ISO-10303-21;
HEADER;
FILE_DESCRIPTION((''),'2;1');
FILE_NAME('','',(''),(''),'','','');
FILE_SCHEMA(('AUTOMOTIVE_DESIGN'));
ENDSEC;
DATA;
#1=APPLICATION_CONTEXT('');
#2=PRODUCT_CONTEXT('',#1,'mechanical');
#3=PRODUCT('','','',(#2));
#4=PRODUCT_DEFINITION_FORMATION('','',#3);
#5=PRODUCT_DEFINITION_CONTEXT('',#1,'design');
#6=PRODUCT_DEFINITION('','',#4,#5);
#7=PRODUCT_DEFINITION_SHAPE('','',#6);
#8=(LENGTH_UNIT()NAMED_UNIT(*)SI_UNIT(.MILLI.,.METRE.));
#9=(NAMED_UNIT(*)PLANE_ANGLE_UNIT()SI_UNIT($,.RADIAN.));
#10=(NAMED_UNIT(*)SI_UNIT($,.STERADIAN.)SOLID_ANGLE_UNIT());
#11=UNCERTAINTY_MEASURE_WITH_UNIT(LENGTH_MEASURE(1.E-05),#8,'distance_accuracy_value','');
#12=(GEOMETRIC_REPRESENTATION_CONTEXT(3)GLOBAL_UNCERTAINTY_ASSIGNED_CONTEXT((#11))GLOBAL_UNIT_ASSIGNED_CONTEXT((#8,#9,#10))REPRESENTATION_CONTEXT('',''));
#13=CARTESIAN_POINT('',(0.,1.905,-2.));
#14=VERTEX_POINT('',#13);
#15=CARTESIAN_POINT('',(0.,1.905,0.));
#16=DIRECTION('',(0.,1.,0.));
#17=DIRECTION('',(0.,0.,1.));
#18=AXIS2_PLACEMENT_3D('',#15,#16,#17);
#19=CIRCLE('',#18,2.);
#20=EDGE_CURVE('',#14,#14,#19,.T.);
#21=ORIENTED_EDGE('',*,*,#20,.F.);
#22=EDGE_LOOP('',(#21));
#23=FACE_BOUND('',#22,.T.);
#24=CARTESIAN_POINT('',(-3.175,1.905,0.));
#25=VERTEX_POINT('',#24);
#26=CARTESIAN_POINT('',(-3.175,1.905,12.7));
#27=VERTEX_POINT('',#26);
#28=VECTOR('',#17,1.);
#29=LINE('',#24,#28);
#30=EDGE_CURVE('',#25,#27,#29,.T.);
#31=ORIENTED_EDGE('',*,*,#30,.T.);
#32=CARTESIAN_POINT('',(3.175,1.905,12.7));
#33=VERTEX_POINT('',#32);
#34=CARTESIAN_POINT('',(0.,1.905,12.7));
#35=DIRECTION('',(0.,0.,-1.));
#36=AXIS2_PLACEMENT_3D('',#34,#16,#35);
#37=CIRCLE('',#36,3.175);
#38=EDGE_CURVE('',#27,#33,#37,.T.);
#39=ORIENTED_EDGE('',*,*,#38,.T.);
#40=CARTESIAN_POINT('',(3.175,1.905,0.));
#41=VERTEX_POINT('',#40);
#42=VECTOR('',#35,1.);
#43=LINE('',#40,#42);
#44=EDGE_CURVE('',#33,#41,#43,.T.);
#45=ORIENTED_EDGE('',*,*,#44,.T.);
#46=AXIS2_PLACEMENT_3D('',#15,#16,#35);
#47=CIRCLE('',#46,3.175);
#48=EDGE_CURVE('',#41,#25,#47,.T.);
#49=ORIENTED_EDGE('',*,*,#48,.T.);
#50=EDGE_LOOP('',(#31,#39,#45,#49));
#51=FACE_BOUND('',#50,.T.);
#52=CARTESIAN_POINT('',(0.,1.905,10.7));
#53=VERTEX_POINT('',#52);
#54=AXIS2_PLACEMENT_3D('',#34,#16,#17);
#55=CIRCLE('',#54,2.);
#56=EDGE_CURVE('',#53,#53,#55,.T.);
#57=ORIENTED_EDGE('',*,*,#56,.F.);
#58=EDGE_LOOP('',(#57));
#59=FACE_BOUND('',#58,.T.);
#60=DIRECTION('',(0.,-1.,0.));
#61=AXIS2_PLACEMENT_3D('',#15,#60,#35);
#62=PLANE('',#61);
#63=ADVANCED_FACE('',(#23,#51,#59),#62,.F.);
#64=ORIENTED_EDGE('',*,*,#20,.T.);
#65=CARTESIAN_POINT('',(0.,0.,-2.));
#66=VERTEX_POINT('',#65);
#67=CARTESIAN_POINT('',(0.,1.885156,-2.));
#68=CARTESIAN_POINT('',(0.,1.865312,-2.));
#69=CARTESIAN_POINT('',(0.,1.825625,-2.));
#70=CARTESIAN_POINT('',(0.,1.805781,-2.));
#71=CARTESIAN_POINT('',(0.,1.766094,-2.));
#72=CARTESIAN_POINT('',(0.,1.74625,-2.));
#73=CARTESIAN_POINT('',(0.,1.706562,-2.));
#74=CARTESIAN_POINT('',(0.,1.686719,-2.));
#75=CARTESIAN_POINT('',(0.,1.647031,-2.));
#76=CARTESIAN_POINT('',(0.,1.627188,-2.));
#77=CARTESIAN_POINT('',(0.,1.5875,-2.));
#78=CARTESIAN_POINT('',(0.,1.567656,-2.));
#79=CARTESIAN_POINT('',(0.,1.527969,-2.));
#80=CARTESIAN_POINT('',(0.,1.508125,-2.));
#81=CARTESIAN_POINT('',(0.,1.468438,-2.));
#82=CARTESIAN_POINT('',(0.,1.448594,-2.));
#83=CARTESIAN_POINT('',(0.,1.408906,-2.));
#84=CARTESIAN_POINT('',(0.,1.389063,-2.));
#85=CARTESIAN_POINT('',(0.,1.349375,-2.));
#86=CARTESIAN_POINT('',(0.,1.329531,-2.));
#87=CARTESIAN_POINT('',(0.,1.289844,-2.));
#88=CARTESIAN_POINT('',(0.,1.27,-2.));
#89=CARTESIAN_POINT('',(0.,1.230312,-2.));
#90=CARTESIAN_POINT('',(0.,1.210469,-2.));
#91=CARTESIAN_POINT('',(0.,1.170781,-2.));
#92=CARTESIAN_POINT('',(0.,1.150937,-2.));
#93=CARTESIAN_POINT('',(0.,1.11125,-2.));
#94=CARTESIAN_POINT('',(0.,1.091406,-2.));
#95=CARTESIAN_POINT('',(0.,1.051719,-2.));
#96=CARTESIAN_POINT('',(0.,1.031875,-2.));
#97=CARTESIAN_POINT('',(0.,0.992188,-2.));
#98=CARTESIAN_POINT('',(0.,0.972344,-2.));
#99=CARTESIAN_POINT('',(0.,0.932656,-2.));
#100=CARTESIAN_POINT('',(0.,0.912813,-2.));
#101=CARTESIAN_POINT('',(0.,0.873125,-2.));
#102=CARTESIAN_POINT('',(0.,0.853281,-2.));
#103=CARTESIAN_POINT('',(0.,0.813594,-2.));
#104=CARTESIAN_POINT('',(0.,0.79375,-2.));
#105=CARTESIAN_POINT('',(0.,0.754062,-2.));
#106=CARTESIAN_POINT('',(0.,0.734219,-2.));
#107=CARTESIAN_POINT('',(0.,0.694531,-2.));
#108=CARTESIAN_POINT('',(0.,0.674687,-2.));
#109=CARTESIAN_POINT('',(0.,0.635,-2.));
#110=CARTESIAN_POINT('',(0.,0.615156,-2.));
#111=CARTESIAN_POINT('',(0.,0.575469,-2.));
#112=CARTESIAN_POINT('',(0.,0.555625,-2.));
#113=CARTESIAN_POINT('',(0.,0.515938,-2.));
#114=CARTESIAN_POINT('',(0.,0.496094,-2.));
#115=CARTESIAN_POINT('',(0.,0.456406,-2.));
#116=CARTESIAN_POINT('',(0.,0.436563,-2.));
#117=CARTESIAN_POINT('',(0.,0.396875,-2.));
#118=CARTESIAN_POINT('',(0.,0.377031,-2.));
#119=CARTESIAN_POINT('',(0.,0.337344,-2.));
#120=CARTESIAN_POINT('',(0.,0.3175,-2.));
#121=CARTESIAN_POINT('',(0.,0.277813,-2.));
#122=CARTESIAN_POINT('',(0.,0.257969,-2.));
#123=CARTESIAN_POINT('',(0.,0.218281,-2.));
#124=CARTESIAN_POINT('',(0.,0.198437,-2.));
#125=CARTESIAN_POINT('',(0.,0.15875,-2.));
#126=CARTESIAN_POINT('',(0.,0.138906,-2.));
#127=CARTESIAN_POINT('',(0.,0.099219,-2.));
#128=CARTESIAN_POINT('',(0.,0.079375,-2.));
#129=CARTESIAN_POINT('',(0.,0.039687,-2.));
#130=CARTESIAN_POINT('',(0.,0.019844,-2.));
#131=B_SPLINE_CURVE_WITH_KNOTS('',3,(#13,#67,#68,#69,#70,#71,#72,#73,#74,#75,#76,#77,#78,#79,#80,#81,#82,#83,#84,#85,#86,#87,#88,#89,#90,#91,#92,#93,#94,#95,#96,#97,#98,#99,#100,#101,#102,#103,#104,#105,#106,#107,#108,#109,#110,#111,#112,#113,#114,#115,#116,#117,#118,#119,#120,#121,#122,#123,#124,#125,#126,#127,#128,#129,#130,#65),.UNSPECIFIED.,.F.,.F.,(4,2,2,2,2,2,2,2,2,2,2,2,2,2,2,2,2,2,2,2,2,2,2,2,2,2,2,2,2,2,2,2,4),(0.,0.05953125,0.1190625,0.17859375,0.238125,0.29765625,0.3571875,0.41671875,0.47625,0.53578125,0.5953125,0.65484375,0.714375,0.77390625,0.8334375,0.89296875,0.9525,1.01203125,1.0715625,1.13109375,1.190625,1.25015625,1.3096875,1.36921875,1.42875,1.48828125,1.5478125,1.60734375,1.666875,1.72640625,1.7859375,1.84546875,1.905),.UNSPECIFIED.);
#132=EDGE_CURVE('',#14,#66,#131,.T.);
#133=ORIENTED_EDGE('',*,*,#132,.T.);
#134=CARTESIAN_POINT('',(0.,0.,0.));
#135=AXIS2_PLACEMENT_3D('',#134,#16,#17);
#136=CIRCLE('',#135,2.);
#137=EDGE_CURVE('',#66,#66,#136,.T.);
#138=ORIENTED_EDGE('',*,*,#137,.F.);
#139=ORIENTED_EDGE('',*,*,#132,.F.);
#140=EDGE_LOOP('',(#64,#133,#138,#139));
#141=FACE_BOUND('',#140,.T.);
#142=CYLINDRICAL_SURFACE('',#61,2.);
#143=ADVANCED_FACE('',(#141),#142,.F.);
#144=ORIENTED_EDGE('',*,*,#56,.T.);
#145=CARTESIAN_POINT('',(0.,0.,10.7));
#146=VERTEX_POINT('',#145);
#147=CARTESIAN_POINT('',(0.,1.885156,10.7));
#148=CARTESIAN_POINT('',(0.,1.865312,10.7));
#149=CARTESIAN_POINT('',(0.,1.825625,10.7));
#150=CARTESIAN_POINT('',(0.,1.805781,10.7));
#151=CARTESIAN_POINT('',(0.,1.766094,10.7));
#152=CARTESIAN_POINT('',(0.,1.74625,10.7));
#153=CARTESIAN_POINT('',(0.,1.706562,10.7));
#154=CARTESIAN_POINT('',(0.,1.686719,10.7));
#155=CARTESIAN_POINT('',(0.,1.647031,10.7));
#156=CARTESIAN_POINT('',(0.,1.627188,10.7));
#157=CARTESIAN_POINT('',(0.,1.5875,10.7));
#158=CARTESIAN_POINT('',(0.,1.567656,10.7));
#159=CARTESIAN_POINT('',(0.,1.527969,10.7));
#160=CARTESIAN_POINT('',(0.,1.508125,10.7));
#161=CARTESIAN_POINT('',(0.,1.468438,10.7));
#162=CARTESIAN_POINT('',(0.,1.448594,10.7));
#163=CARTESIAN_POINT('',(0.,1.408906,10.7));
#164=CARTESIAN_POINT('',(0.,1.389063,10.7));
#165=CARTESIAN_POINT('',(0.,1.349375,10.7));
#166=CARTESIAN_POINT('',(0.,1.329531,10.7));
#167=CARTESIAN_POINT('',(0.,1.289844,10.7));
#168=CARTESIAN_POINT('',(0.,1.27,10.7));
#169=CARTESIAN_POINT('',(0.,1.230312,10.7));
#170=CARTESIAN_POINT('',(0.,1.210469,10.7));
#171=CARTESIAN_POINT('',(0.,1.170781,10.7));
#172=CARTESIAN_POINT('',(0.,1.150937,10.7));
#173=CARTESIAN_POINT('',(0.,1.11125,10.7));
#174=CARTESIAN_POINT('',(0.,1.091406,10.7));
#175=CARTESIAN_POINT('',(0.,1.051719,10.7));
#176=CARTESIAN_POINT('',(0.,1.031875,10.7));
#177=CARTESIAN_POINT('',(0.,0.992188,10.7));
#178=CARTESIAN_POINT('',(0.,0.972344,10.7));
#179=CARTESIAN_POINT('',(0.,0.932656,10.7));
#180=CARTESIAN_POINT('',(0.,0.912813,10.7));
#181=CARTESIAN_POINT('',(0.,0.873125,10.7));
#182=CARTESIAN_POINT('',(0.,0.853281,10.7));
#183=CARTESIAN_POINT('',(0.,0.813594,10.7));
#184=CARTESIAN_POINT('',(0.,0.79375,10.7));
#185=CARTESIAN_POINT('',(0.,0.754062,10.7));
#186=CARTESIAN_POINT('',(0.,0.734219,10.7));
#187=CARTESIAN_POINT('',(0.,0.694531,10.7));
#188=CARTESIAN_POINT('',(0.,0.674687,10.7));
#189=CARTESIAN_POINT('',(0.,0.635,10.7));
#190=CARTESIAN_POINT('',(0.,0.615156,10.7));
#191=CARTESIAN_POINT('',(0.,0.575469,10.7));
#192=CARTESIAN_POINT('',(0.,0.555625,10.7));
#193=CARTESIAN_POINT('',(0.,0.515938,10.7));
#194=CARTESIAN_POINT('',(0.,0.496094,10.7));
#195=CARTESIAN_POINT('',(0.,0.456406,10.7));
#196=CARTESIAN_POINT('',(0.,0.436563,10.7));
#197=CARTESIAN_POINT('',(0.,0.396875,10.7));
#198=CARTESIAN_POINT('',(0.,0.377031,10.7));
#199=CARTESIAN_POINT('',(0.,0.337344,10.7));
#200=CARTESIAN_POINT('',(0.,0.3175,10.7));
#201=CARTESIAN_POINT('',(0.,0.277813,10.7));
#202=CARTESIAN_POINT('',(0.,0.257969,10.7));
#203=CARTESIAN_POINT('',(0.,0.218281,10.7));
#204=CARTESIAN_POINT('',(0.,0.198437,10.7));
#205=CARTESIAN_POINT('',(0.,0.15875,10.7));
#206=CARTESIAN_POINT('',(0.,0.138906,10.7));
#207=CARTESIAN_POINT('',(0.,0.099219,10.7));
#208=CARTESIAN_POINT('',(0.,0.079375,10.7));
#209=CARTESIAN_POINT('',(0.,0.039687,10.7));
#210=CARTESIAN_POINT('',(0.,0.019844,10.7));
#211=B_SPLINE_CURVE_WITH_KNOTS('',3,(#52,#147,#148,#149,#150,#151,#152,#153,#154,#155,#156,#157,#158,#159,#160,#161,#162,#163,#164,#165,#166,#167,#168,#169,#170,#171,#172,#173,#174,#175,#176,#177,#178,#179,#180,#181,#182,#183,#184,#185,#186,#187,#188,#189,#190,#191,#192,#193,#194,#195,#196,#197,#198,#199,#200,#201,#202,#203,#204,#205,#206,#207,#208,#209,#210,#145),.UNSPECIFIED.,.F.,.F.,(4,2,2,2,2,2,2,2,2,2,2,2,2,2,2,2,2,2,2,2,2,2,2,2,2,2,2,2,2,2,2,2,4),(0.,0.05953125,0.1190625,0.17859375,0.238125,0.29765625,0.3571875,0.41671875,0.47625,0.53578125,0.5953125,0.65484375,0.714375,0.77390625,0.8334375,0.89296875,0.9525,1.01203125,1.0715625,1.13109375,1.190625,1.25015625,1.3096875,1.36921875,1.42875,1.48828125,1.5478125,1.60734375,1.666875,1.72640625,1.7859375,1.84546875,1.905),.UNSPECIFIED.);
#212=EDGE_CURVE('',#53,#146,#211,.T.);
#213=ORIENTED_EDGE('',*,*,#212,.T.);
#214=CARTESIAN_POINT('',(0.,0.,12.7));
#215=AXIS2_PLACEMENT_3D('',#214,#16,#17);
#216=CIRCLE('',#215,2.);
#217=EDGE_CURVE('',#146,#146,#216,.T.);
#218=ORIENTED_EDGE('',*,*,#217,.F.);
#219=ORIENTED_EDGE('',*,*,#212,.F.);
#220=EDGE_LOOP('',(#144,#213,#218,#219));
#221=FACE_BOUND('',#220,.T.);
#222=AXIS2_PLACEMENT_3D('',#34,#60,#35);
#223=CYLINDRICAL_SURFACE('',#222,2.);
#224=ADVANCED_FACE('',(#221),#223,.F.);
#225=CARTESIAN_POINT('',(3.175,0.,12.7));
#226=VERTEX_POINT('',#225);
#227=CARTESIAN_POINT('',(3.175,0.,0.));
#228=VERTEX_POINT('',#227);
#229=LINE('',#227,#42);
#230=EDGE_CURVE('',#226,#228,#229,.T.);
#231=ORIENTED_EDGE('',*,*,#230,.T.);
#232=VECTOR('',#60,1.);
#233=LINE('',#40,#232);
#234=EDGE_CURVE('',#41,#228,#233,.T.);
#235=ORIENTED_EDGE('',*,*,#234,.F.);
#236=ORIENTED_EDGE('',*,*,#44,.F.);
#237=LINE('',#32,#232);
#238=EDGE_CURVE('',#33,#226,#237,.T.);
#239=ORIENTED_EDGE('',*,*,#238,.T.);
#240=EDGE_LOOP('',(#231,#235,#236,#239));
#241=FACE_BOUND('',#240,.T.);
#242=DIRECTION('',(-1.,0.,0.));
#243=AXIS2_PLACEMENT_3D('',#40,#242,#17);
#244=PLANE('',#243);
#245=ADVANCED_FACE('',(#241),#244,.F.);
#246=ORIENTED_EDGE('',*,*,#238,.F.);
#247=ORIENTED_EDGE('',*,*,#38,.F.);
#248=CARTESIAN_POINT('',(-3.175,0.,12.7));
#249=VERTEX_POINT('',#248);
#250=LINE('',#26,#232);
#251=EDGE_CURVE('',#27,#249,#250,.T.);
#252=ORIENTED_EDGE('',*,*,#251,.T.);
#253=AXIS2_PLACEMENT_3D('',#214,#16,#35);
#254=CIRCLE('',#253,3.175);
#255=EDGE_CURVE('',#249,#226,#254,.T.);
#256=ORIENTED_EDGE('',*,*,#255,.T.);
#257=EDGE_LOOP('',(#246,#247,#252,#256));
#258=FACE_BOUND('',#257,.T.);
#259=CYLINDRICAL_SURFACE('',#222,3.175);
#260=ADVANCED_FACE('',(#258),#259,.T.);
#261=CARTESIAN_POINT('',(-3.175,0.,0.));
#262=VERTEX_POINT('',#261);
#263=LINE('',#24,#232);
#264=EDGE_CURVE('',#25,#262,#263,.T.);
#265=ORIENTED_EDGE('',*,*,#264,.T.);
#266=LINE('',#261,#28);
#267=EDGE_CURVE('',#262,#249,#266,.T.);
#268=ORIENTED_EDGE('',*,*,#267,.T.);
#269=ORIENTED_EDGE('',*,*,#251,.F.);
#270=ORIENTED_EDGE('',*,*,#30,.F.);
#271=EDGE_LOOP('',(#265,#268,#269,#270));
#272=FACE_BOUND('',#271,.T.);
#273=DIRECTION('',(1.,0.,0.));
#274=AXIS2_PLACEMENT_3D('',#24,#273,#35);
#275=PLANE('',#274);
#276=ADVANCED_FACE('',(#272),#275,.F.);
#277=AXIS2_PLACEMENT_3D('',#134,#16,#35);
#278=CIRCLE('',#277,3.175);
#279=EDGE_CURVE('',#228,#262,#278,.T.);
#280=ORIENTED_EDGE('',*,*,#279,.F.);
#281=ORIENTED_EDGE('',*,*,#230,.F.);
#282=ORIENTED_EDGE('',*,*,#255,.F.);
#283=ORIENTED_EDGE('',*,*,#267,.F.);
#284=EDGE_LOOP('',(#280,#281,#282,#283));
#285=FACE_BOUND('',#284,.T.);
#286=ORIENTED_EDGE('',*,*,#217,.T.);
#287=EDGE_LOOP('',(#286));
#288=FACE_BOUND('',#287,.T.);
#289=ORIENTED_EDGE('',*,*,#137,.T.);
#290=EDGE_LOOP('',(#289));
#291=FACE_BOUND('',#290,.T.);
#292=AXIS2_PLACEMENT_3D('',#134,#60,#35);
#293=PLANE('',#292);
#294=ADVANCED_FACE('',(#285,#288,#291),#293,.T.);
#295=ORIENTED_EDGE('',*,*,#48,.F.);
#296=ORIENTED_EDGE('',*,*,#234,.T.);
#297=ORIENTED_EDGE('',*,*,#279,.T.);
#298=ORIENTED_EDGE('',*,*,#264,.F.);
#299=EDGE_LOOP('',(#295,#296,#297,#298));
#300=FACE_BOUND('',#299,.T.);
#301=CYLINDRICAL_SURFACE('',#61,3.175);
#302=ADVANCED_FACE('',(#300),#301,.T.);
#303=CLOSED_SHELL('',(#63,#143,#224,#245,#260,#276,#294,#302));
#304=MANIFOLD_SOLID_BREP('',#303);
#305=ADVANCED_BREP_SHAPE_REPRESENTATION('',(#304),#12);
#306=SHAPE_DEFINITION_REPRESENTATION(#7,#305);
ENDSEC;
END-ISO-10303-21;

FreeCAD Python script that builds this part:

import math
import FreeCAD as App
import Part
import Sketcher
from FreeCAD import Vector
Q = App.Units.Quantity

doc = App.newDocument("Part")
body = doc.addObject("PartDesign::Body", "Body")

# Sketch on XZ plane
sketch1 = doc.addObject("Sketcher::SketchObject", "Sketch")
body.addObject(sketch1)
sketch1.AttachmentSupport = (doc.XZ_Plane, [""])
sketch1.MapMode = "FlatFace"
sketch1.addGeometry(Part.LineSegment(Vector(3.2, 12.7, 0), Vector(3.2, 0, 0)), False)
sketch1.addGeometry(Part.ArcOfCircle(Part.Circle(Vector(0, 0, 0), Vector(0, 0, 1), 3.2), math.radians(180), math.radians(360)), False)
sketch1.addGeometry(Part.LineSegment(Vector(-3.2, 0, 0), Vector(-3.2, 12.7, 0)), False)
sketch1.addGeometry(Part.ArcOfCircle(Part.Circle(Vector(0, 12.7, 0), Vector(0, 0, 1), 3.2), math.radians(0), math.radians(180)), False)
sketch1.addGeometry(Part.Circle(Vector(0, 12.7, 0), Vector(0, 0, 1), 2), False)
sketch1.addGeometry(Part.Circle(Vector(0, 0, 0), Vector(0, 0, 1), 2), False)
sketch1.addConstraint(Sketcher.Constraint("Tangent", 0, 2, 1, 2))
sketch1.addConstraint(Sketcher.Constraint("Tangent", 1, 1, 2, 1))
sketch1.addConstraint(Sketcher.Constraint("Tangent", 2, 2, 3, 2))
sketch1.addConstraint(Sketcher.Constraint("Tangent", 3, 1, 0, 1))
sketch1.addConstraint(Sketcher.Constraint("Vertical", 0))
sketch1.addConstraint(Sketcher.Constraint("Vertical", 2))
sketch1.addConstraint(Sketcher.Constraint("Coincident", 1, 3, -1, 1))
sketch1.addConstraint(Sketcher.Constraint("Coincident", 5, 3, -1, 1))
sketch1.addConstraint(Sketcher.Constraint("Coincident", 4, 3, 3, 3))
sketch1.addConstraint(Sketcher.Constraint("Equal", 4, 5))
sketch1.addConstraint(Sketcher.Constraint("DistanceY", 0, 2, 0, 1, Q("0.5 in")))
sketch1.addConstraint(Sketcher.Constraint("Radius", 1, Q("0.125 in")))
sketch1.addConstraint(Sketcher.Constraint("Diameter", 4, 4.0))
pad1 = doc.addObject("PartDesign::Pad", "Pad")
body.addObject(pad1)
pad1.Profile = sketch1
pad1.Length = Q("0.075 in")
pad1.Reversed = True

doc.recompute()
